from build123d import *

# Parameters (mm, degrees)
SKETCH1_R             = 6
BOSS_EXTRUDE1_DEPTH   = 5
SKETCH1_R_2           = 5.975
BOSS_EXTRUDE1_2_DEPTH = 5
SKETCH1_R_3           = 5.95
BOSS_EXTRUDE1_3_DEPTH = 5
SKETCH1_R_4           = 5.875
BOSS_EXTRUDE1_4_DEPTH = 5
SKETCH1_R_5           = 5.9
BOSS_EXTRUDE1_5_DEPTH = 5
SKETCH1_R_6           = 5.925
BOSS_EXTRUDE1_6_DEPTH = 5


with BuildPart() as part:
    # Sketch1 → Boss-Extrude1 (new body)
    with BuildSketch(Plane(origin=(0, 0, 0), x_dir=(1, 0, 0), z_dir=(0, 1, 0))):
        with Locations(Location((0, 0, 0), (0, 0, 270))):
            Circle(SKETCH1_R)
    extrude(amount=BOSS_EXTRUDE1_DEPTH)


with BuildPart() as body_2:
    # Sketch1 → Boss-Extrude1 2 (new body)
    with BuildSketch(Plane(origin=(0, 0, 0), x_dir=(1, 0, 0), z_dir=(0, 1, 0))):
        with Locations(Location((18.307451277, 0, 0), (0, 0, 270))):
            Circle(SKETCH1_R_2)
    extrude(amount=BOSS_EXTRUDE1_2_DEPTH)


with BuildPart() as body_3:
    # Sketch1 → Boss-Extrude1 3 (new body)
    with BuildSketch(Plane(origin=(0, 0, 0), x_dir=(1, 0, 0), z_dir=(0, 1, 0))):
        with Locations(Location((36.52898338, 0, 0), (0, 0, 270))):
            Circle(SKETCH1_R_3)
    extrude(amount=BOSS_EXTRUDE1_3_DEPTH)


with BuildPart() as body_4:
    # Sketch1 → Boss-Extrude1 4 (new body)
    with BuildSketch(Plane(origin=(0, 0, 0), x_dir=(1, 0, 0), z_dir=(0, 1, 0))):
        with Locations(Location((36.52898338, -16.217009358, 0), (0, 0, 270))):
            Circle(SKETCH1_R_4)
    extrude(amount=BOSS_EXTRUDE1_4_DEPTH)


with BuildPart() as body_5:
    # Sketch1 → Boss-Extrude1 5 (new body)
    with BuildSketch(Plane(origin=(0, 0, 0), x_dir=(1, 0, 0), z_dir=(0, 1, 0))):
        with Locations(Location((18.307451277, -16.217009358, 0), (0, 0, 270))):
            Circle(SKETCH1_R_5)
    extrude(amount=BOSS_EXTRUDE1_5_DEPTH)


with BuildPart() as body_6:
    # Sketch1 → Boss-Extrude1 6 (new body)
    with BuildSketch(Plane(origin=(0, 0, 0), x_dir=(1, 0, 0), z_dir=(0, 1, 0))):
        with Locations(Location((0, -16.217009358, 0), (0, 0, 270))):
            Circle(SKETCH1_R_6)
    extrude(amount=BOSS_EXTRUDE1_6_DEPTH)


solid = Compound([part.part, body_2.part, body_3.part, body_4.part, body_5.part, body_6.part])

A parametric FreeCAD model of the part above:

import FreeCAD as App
import Part
import Sketcher
from FreeCAD import Vector
Q = App.Units.Quantity

doc = App.newDocument("Part")
body = doc.addObject("PartDesign::Body", "Body")

# Sketch on XZ plane
sketch1 = body.newObject("Sketcher::SketchObject", "Sketch")
sketch1.AttachmentSupport = (doc.getObject("XZ_Plane"), [""])
sketch1.MapMode = "FlatFace"
sketch1.addGeometry(Part.Circle(Vector(0, 0, 0), Vector(0, 0, 1), 6), False)
sketch1.addConstraint(Sketcher.Constraint("Coincident", 0, 3, -1, 1))
sketch1.addConstraint(Sketcher.Constraint("Diameter", 0, Q("12 mm")))
pad1 = body.newObject("PartDesign::Pad", "Pad")
pad1.Profile = sketch1
pad1.Length = 5
pad1.Reversed = True
body2 = doc.addObject("PartDesign::Body", "Body001")

# Sketch on XZ plane
sketch2 = body2.newObject("Sketcher::SketchObject", "Sketch001")
sketch2.AttachmentSupport = (doc.getObject("XZ_Plane001"), [""])
sketch2.MapMode = "FlatFace"
sketch2.addGeometry(Part.Circle(Vector(18, 0, 0), Vector(0, 0, 1), 6), False)
sketch2.addConstraint(Sketcher.Constraint("PointOnObject", 0, 3, -1))
sketch2.addConstraint(Sketcher.Constraint("Diameter", 0, Q("11.95 mm")))
sketch2.addConstraint(Sketcher.Constraint("DistanceX", -1, 1, 0, 3, Q("18.307451 mm")))
pad2 = body2.newObject("PartDesign::Pad", "Pad001")
pad2.Profile = sketch2
pad2.Length = 5
pad2.Reversed = True
body3 = doc.addObject("PartDesign::Body", "Body002")

# Sketch on XZ plane
sketch3 = body3.newObject("Sketcher::SketchObject", "Sketch002")
sketch3.AttachmentSupport = (doc.getObject("XZ_Plane002"), [""])
sketch3.MapMode = "FlatFace"
sketch3.addGeometry(Part.Circle(Vector(37, 0, 0), Vector(0, 0, 1), 6), False)
sketch3.addConstraint(Sketcher.Constraint("PointOnObject", 0, 3, -1))
sketch3.addConstraint(Sketcher.Constraint("Diameter", 0, Q("11.9 mm")))
sketch3.addConstraint(Sketcher.Constraint("DistanceX", -1, 1, 0, 3, Q("36.528983 mm")))
pad3 = body3.newObject("PartDesign::Pad", "Pad002")
pad3.Profile = sketch3
pad3.Length = 5
pad3.Reversed = True
body4 = doc.addObject("PartDesign::Body", "Body003")

# Sketch on XZ plane
sketch4 = body4.newObject("Sketcher::SketchObject", "Sketch003")
sketch4.AttachmentSupport = (doc.getObject("XZ_Plane003"), [""])
sketch4.MapMode = "FlatFace"
sketch4.addGeometry(Part.Circle(Vector(37, 16, 0), Vector(0, 0, 1), 6), False)
sketch4.addConstraint(Sketcher.Constraint("Diameter", 0, Q("11.75 mm")))
sketch4.addConstraint(Sketcher.Constraint("DistanceY", -1, 1, 0, 3, Q("16.217009 mm")))
sketch4.addConstraint(Sketcher.Constraint("DistanceX", -1, 1, 0, 3, Q("36.528983 mm")))
pad4 = body4.newObject("PartDesign::Pad", "Pad003")
pad4.Profile = sketch4
pad4.Length = 5
pad4.Reversed = True
body5 = doc.addObject("PartDesign::Body", "Body004")

# Sketch on XZ plane
sketch5 = body5.newObject("Sketcher::SketchObject", "Sketch004")
sketch5.AttachmentSupport = (doc.getObject("XZ_Plane004"), [""])
sketch5.MapMode = "FlatFace"
sketch5.addGeometry(Part.Circle(Vector(18, 16, 0), Vector(0, 0, 1), 6), False)
sketch5.addConstraint(Sketcher.Constraint("Diameter", 0, Q("11.8 mm")))
sketch5.addConstraint(Sketcher.Constraint("DistanceX", -1, 1, 0, 3, Q("18.307451 mm")))
sketch5.addConstraint(Sketcher.Constraint("DistanceY", -1, 1, 0, 3, Q("16.217009 mm")))
pad5 = body5.newObject("PartDesign::Pad", "Pad004")
pad5.Profile = sketch5
pad5.Length = 5
pad5.Reversed = True
body6 = doc.addObject("PartDesign::Body", "Body005")

# Sketch on XZ plane
sketch6 = body6.newObject("Sketcher::SketchObject", "Sketch005")
sketch6.AttachmentSupport = (doc.getObject("XZ_Plane005"), [""])
sketch6.MapMode = "FlatFace"
sketch6.addGeometry(Part.Circle(Vector(0, 16, 0), Vector(0, 0, 1), 6), False)
sketch6.addConstraint(Sketcher.Constraint("PointOnObject", 0, 3, -2))
sketch6.addConstraint(Sketcher.Constraint("Diameter", 0, Q("11.85 mm")))
sketch6.addConstraint(Sketcher.Constraint("DistanceY", -1, 1, 0, 3, Q("16.217009 mm")))
pad6 = body6.newObject("PartDesign::Pad", "Pad005")
pad6.Profile = sketch6
pad6.Length = 5
pad6.Reversed = True

doc.recompute()
